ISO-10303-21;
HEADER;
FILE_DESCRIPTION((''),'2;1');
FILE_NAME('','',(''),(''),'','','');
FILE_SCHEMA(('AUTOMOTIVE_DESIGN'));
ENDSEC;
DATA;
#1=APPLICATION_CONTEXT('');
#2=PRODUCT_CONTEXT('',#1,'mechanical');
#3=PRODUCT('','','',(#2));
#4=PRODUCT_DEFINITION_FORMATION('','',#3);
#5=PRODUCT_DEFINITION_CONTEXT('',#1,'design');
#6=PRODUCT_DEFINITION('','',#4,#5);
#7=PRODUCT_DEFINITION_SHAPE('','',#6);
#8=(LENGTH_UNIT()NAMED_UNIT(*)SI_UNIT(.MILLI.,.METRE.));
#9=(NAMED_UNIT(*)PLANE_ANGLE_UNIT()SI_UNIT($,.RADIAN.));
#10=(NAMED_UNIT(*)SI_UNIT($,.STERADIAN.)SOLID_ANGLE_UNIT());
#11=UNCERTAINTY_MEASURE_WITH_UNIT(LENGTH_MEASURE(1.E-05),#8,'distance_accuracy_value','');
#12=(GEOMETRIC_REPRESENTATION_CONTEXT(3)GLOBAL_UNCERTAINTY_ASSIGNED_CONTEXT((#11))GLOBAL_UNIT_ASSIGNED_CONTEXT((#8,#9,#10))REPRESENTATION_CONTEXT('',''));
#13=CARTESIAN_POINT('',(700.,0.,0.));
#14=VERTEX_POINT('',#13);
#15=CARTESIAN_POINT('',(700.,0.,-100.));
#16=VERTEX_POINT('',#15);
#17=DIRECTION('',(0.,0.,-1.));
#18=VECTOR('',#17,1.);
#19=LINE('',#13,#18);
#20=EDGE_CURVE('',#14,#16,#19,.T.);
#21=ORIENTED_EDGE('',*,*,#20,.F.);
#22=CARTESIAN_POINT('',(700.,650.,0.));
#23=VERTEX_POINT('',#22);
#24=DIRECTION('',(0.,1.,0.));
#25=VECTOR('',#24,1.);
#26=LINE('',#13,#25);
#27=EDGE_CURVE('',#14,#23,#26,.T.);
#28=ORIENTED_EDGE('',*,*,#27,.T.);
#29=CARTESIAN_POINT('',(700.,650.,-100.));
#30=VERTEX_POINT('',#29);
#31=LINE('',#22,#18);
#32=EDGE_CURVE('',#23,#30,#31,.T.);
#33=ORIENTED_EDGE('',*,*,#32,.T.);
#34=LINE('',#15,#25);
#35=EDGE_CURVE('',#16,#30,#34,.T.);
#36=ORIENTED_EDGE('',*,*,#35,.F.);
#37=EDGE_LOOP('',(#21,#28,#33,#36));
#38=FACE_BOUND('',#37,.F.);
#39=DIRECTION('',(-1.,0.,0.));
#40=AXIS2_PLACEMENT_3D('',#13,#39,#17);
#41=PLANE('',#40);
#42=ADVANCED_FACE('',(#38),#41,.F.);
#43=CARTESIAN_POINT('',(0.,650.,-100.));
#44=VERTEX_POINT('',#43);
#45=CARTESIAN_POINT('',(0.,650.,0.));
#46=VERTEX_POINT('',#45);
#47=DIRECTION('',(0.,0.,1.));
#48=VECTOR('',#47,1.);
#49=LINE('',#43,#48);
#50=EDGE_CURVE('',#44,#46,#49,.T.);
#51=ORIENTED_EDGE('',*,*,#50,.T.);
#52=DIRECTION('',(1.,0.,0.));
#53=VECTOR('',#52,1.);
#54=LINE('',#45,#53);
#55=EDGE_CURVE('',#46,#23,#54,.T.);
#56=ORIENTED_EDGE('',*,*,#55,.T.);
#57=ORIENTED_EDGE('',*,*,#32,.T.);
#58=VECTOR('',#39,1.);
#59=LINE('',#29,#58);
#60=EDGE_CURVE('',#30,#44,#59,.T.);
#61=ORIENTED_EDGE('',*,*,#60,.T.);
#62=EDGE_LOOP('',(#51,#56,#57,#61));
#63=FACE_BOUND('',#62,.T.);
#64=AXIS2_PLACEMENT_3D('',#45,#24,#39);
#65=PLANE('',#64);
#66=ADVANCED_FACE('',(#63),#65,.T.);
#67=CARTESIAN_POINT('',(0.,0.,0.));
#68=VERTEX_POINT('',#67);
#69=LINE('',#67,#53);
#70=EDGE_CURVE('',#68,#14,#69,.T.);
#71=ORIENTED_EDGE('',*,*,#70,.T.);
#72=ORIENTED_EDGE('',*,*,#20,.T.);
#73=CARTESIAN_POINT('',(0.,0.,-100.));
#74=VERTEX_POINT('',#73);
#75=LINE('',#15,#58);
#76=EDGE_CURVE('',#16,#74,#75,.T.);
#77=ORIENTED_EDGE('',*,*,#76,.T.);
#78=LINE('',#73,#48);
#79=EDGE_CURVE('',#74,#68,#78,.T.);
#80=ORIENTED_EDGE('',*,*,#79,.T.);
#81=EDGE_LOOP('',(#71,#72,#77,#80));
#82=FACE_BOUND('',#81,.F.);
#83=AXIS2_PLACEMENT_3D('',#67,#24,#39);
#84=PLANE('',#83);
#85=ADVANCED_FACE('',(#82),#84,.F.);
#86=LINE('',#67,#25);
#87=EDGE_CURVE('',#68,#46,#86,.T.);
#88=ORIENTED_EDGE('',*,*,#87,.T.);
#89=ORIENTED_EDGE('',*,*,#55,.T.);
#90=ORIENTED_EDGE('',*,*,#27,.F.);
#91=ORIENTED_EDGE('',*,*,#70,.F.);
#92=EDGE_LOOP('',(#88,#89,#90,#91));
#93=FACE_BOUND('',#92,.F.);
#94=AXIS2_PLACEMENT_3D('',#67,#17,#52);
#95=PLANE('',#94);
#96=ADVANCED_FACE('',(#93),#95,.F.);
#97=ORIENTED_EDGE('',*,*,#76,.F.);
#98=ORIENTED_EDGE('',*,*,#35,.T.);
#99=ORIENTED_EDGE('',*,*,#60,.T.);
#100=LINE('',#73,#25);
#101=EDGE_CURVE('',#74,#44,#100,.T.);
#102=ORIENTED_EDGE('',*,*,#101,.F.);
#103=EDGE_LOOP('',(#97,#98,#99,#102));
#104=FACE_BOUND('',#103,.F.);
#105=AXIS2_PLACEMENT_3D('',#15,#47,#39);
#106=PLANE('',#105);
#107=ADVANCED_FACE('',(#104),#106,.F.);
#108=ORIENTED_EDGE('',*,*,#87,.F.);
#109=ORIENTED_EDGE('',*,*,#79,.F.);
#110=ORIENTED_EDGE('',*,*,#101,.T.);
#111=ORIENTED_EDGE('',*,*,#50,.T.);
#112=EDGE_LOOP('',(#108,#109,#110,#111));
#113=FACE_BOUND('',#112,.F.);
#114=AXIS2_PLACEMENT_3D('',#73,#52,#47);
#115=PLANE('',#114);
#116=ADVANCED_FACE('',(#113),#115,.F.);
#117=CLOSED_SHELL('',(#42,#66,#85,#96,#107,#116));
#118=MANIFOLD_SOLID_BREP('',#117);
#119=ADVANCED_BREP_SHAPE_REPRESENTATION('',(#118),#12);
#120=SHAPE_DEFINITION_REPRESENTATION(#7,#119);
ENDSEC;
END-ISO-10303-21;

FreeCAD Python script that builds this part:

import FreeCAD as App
import Part
import Sketcher
Q = App.Units.Quantity

doc = App.newDocument("Part")
body = doc.addObject("PartDesign::Body", "Body")

# Sketch on XZ plane
sketch1 = body.newObject("Sketcher::SketchObject", "Sketch")
sketch1.AttachmentSupport = (doc.getObject("XZ_Plane"), [""])
sketch1.MapMode = "FlatFace"
sketch1.addGeometry(Part.LineSegment(App.Vector(0, -100, 0), App.Vector(0, 0, 0)), False)
sketch1.addGeometry(Part.LineSegment(App.Vector(0, 0, 0), App.Vector(700, 0, 0)), False)
sketch1.addGeometry(Part.LineSegment(App.Vector(700, 0, 0), App.Vector(700, -100, 0)), False)
sketch1.addGeometry(Part.LineSegment(App.Vector(700, -100, 0), App.Vector(0, -100, 0)), False)
sketch1.addConstraint(Sketcher.Constraint("Coincident", 0, 2, 1, 1))
sketch1.addConstraint(Sketcher.Constraint("Coincident", 1, 2, 2, 1))
sketch1.addConstraint(Sketcher.Constraint("Coincident", 2, 2, 3, 1))
sketch1.addConstraint(Sketcher.Constraint("Coincident", 3, 2, 0, 1))
sketch1.addConstraint(Sketcher.Constraint("Vertical", 0))
sketch1.addConstraint(Sketcher.Constraint("Horizontal", 1))
sketch1.addConstraint(Sketcher.Constraint("Vertical", 2))
sketch1.addConstraint(Sketcher.Constraint("Horizontal", 3))
sketch1.addConstraint(Sketcher.Constraint("Coincident", 0, 2, -1, 1))
sketch1.addConstraint(Sketcher.Constraint("DistanceX", 1, 1, 1, 2, Q("700 mm")))
sketch1.addConstraint(Sketcher.Constraint("DistanceY", 0, 1, 0, 2, Q("100 mm")))
pad1 = body.newObject("PartDesign::Pad", "Pad")
pad1.Profile = sketch1
pad1.Length = 650
pad1.Reversed = True

doc.recompute()
